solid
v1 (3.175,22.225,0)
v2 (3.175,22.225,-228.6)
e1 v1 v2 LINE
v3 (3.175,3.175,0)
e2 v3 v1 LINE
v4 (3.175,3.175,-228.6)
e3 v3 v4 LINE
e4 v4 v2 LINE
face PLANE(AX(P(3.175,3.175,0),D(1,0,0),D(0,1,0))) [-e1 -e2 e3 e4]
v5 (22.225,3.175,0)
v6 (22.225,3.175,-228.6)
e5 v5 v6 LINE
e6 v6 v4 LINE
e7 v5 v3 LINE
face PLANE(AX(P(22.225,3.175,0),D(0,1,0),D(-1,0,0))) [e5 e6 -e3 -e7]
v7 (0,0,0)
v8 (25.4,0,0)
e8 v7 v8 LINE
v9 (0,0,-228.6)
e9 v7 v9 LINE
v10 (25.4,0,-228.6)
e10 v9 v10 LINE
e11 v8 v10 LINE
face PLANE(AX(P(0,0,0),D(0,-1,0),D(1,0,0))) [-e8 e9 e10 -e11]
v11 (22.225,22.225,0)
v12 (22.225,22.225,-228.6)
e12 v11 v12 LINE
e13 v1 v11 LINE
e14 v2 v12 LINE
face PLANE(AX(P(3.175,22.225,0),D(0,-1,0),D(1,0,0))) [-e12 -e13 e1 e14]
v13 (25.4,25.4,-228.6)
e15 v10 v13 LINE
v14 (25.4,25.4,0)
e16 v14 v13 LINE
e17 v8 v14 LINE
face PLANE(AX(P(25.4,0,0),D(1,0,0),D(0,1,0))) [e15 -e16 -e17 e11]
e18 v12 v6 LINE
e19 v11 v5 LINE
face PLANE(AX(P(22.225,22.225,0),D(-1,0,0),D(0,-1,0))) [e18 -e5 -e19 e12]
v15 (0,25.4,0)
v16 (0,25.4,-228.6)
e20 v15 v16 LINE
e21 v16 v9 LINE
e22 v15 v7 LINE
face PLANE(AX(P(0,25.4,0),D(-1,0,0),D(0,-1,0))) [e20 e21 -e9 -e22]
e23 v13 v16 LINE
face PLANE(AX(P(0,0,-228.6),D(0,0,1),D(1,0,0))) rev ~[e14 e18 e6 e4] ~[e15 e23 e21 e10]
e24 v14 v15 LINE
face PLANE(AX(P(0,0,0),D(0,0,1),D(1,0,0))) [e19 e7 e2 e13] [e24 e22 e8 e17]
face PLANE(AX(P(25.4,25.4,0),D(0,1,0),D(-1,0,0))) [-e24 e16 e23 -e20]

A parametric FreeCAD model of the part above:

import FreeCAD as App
import Part
import Sketcher
Q = App.Units.Quantity

doc = App.newDocument("Part")
body = doc.addObject("PartDesign::Body", "Body")

# Sketch on XY plane
sketch1 = doc.addObject("Sketcher::SketchObject", "Sketch")
body.addObject(sketch1)
sketch1.AttachmentSupport = (doc.XY_Plane, [""])
sketch1.MapMode = "FlatFace"
sketch1.addGeometry(Part.LineSegment(App.Vector(0, 25.4, 0), App.Vector(0, 0, 0)), False)
sketch1.addGeometry(Part.LineSegment(App.Vector(0, 0, 0), App.Vector(25.4, 0, 0)), False)
sketch1.addGeometry(Part.LineSegment(App.Vector(25.4, 0, 0), App.Vector(25.4, 25.4, 0)), False)
sketch1.addGeometry(Part.LineSegment(App.Vector(25.4, 25.4, 0), App.Vector(0, 25.4, 0)), False)
sketch1.addGeometry(Part.LineSegment(App.Vector(3.175, 3.175, 0), App.Vector(3.175, 22.225, 0)), False)
sketch1.addGeometry(Part.LineSegment(App.Vector(3.175, 22.225, 0), App.Vector(22.225, 22.225, 0)), False)
sketch1.addGeometry(Part.LineSegment(App.Vector(22.225, 22.225, 0), App.Vector(22.225, 3.175, 0)), False)
sketch1.addGeometry(Part.LineSegment(App.Vector(22.225, 3.175, 0), App.Vector(3.175, 3.175, 0)), False)
sketch1.addConstraint(Sketcher.Constraint("Coincident", 0, 2, 1, 1))
sketch1.addConstraint(Sketcher.Constraint("Coincident", 1, 2, 2, 1))
sketch1.addConstraint(Sketcher.Constraint("Coincident", 2, 2, 3, 1))
sketch1.addConstraint(Sketcher.Constraint("Coincident", 3, 2, 0, 1))
sketch1.addConstraint(Sketcher.Constraint("Coincident", 4, 2, 5, 1))
sketch1.addConstraint(Sketcher.Constraint("Coincident", 5, 2, 6, 1))
sketch1.addConstraint(Sketcher.Constraint("Coincident", 6, 2, 7, 1))
sketch1.addConstraint(Sketcher.Constraint("Coincident", 7, 2, 4, 1))
sketch1.addConstraint(Sketcher.Constraint("Vertical", 0))
sketch1.addConstraint(Sketcher.Constraint("Horizontal", 1))
sketch1.addConstraint(Sketcher.Constraint("Vertical", 2))
sketch1.addConstraint(Sketcher.Constraint("Horizontal", 3))
sketch1.addConstraint(Sketcher.Constraint("Vertical", 4))
sketch1.addConstraint(Sketcher.Constraint("Horizontal", 5))
sketch1.addConstraint(Sketcher.Constraint("Vertical", 6))
sketch1.addConstraint(Sketcher.Constraint("Horizontal", 7))
sketch1.addConstraint(Sketcher.Constraint("Coincident", 0, 2, -1, 1))
sketch1.addConstraint(Sketcher.Constraint("Equal", 3, 0))
sketch1.addConstraint(Sketcher.Constraint("Equal", 7, 4))
sketch1.addConstraint(Sketcher.Constraint("DistanceX", 1, 1, 1, 2, Q("1 in")))
sketch1.addConstraint(Sketcher.Constraint("DistanceX", -1, 1, 4, 2, Q("0.125 in")))
sketch1.addConstraint(Sketcher.Constraint("DistanceY", -1, 1, 6, 2, Q("0.125 in")))
sketch1.addConstraint(Sketcher.Constraint("DistanceY", 4, 2, 3, 2, Q("0.125 in")))
pad1 = doc.addObject("PartDesign::Pad", "Pad")
body.addObject(pad1)
pad1.Profile = sketch1
pad1.Length = Q("9 in")
pad1.Reversed = True

doc.recompute()
